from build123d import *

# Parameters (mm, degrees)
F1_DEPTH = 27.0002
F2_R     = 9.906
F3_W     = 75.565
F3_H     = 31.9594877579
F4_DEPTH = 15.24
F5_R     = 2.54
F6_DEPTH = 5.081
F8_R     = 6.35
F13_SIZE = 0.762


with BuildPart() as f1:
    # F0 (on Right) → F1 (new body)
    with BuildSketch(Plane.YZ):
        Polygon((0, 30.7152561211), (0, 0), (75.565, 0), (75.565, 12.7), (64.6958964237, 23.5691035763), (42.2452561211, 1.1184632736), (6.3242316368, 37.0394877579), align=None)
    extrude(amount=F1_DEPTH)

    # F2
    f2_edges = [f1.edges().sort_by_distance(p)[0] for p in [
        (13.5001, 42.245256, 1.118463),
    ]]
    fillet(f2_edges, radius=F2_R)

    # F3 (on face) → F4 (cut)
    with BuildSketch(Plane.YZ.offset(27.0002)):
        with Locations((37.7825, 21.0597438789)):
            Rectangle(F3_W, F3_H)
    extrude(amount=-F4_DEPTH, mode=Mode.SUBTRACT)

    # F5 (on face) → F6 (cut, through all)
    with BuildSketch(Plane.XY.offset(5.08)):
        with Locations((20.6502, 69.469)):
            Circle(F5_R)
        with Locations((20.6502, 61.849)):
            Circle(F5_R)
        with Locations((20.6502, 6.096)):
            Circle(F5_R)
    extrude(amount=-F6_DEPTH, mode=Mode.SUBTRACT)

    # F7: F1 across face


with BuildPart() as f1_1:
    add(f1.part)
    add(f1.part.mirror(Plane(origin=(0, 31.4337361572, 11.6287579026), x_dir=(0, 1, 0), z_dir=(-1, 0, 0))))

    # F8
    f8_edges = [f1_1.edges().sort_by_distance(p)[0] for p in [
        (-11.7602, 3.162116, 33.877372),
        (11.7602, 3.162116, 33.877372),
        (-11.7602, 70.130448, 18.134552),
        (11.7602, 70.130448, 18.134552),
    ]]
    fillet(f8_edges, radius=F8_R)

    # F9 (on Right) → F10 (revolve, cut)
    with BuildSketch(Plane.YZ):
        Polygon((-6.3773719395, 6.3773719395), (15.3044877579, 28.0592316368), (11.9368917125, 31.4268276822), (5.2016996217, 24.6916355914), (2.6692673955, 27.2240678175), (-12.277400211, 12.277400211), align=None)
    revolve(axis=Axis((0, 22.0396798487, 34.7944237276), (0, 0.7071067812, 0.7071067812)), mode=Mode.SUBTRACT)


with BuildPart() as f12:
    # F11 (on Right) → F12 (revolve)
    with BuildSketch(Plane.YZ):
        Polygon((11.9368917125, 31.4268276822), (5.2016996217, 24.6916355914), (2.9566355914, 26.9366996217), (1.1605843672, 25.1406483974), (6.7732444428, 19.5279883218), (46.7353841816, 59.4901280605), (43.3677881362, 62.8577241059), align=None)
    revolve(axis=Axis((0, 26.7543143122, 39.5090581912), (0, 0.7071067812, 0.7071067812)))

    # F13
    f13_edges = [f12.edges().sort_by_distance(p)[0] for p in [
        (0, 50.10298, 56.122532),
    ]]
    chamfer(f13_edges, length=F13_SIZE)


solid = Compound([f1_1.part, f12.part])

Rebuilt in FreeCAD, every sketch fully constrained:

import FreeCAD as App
import Part
import Sketcher
from FreeCAD import Vector
Q = App.Units.Quantity


def edges_at(feature, points):
    """Names of the edges that pass closest to the given points."""
    edges = feature.Shape.Edges
    near = lambda p: min(range(len(edges)), key=lambda i: edges[i].distToShape(Part.Vertex(*p))[0])
    return sorted({f"Edge{near(p) + 1}" for p in points})


def add_polygon(sketch, points):
    """Adds a closed chain of lines whose ends are joined by coincident constraints."""
    first, n = sketch.GeometryCount, len(points)
    for a, b in zip(points, points[1:] + points[:1]):
        sketch.addGeometry(Part.LineSegment(App.Vector(*a, 0), App.Vector(*b, 0)), False)
    for i in range(n):
        sketch.addConstraint(Sketcher.Constraint("Coincident", first + i, 2, first + (i + 1) % n, 1))

doc = App.newDocument("Part")
params = doc.addObject("Spreadsheet::Sheet", "Params")
for row, (alias, value) in enumerate([
    ("sketch1_length", "2 in"),
    ("sketch1_height", "0.5 in"),
    ("sketch1_length2", "1.25 in"),
    ("sketch1_width", "2.975 in"),
    ("pad1_length", "1.063 in"),
    ("fillet_radius", "0.39 in"),
    ("sketch2_width", "2.975 in"),
    ("pocket1_length", "0.6 in"),
    ("sketch3_diameter", "0.2 in"),
    ("fillet2_radius", "0.25 in"),
    ("sketch4_length", "0.1875 in"),
    ("sketch4_length2", "0.375 in"),
    ("sketch4_length3", "0.141 in"),
    ("groove_angle", "360 deg"),
    ("sketch5_length", "0.1 in"),
    ("sketch5_length2", "0.125 in"),
    ("sketch5_length3", "0.3125 in"),
    ("sketch5_length4", "2.225 in"),
    ("revolution_angle", "360 deg"),
    ("chamfer_size", "0.03 in"),
], start=1):
    params.set(f"A{row}", alias)
    params.set(f"B{row}", "=" + value)
    params.setAlias(f"B{row}", alias)

body = doc.addObject("PartDesign::Body", "Body")

sketch1 = body.newObject("Sketcher::SketchObject", "Sketch")
sketch1.AttachmentSupport = (doc.getObject("YZ_Plane"), [""])
sketch1.MapMode = "FlatFace"
add_polygon(sketch1, [(0, 31), (0, 0), (76, 0), (76, 13), (65, 24), (42, 1), (6, 37)])
sketch1.addConstraint(Sketcher.Constraint("Vertical", 0))
sketch1.addConstraint(Sketcher.Constraint("Horizontal", 1))
sketch1.addConstraint(Sketcher.Constraint("Vertical", 2))
sketch1.addConstraint(Sketcher.Constraint("Coincident", 0, 2, -1, 1))
sketch1.addConstraint(Sketcher.Constraint("Perpendicular", 3, 4))
sketch1.addConstraint(Sketcher.Constraint("Perpendicular", 4, 5))
sketch1.addConstraint(Sketcher.Constraint("Perpendicular", 5, 6))
sketch1.addConstraint(Sketcher.Constraint("Distance", 5, Q("2 in")))
sketch1.addConstraint(Sketcher.Constraint("DistanceY", 2, 1, 2, 2, Q("0.5 in")))
sketch1.addConstraint(Sketcher.Constraint("Angle", 3, Q("135 deg")))
sketch1.addConstraint(Sketcher.Constraint("Distance", 4, Q("1.25 in")))
sketch1.addConstraint(Sketcher.Constraint("DistanceX", 1, 1, 1, 2, Q("2.975 in")))
sketch1.addConstraint(Sketcher.Constraint("DistanceY", 0, 2, 0, 1, Q("30.715256 mm")))
sketch1.setExpression("Constraints[14]", "Params.sketch1_length")
sketch1.setExpression("Constraints[15]", "Params.sketch1_height")
sketch1.setExpression("Constraints[17]", "Params.sketch1_length2")
sketch1.setExpression("Constraints[18]", "Params.sketch1_width")
pad1 = body.newObject("PartDesign::Pad", "Pad")
pad1.Profile = sketch1
pad1.setExpression("Length", "Params.pad1_length")
doc.recompute()

fillet = body.newObject("PartDesign::Fillet", "Fillet")
fillet.Base = (pad1, edges_at(pad1, [(13.5, 42.245, 1.118)]))
fillet.setExpression("Radius", "Params.fillet_radius")

sketch2 = body.newObject("Sketcher::SketchObject", "Sketch001")
sketch2.AttachmentSupport = (doc.getObject("YZ_Plane"), [""])
sketch2.MapMode = "FlatFace"
sketch2.AttachmentOffset = App.Placement(Vector(0, 0, 1.063 * 25.4), App.Rotation())
add_polygon(sketch2, [(0, 37), (0, 5), (76, 5), (76, 37)])
sketch2.addConstraint(Sketcher.Constraint("Vertical", 0))
sketch2.addConstraint(Sketcher.Constraint("Horizontal", 1))
sketch2.addConstraint(Sketcher.Constraint("Vertical", 2))
sketch2.addConstraint(Sketcher.Constraint("Horizontal", 3))
sketch2.addConstraint(Sketcher.Constraint("PointOnObject", 0, 2, -2))
sketch2.addConstraint(Sketcher.Constraint("DistanceY", -1, 1, 0, 2, Q("0.2 in")))
sketch2.addConstraint(Sketcher.Constraint("DistanceX", 1, 1, 1, 2, Q("2.975 in")))
sketch2.addConstraint(Sketcher.Constraint("DistanceY", 0, 2, 0, 1, Q("31.959488 mm")))
sketch2.setExpression("Constraints[10]", "Params.sketch2_width")
pocket1 = body.newObject("PartDesign::Pocket", "Pocket")
pocket1.Profile = sketch2
pocket1.setExpression("Length", "Params.pocket1_length")

sketch3 = body.newObject("Sketcher::SketchObject", "Sketch002")
sketch3.AttachmentSupport = (doc.getObject("XY_Plane"), [""])
sketch3.MapMode = "FlatFace"
sketch3.AttachmentOffset = App.Placement(Vector(0, 0, 0.2 * 25.4), App.Rotation())
sketch3.addGeometry(Part.Circle(Vector(20.7, 69.5, 0), Vector(0, 0, 1), 2.5), False)
sketch3.addGeometry(Part.Circle(Vector(20.7, 61.8, 0), Vector(0, 0, 1), 2.5), False)
sketch3.addGeometry(Part.Circle(Vector(20.7, 6.1, 0), Vector(0, 0, 1), 2.5), False)
sketch3.addConstraint(Sketcher.Constraint("Equal", 0, 1))
sketch3.addConstraint(Sketcher.Constraint("Equal", 1, 2))
sketch3.addConstraint(Sketcher.Constraint("Vertical", 0, 3, 1, 3))
sketch3.addConstraint(Sketcher.Constraint("Vertical", 1, 3, 2, 3))
sketch3.addConstraint(Sketcher.Constraint("Diameter", 0, Q("0.2 in")))
sketch3.addConstraint(Sketcher.Constraint("DistanceY", 1, 3, 0, 3, Q("0.3 in")))
sketch3.addConstraint(Sketcher.Constraint("DistanceY", -1, 1, 2, 3, Q("0.24 in")))
sketch3.addConstraint(Sketcher.Constraint("DistanceX", -1, 1, 0, 3, Q("0.813 in")))
sketch3.addConstraint(Sketcher.Constraint("DistanceY", -1, 1, 0, 3, Q("2.735 in")))
sketch3.setExpression("Constraints[4]", "Params.sketch3_diameter")
pocket2 = body.newObject("PartDesign::Pocket", "Pocket001")
pocket2.Profile = sketch3
pocket2.Type = "ThroughAll"
body2 = doc.addObject("PartDesign::Body", "Body001")
doc.recompute()

body2.BaseFeature = body
doc.recompute()

mirroring = doc.addObject("Part::Mirroring", "Mirroring")
mirroring.Source = body
mirroring.Base = Vector(0, 31.433736, 11.628758)
mirroring.Normal = Vector(-1, 0, 0)
body3 = doc.addObject("PartDesign::Body", "Body002")
body3.BaseFeature = mirroring
boolean = body2.newObject("PartDesign::Boolean", "Boolean")
boolean.Type = "Fuse"
boolean.addObjects([body3])
doc.recompute()

fillet2 = body2.newObject("PartDesign::Fillet", "Fillet001")
fillet2.Base = (boolean, edges_at(boolean, [
    (-11.76, 3.162, 33.877),
    (11.76, 3.162, 33.877),
    (-11.76, 70.13, 18.135),
    (11.76, 70.13, 18.135),
]))
fillet2.setExpression("Radius", "Params.fillet2_radius")

sketch4 = body2.newObject("Sketcher::SketchObject", "Sketch003")
sketch4.AttachmentSupport = (doc.getObject("YZ_Plane001"), [""])
sketch4.MapMode = "FlatFace"
add_polygon(sketch4, [(-6.4, 6.4), (15.3, 28.1), (11.9, 31.4), (5.2, 24.7), (2.7, 27.2), (-12.3, 12.3)])
sketch4.addGeometry(Part.LineSegment(Vector(-6.4, 6.4, 0), Vector(15.3, 28.1, 0)), True)
sketch4.addConstraint(Sketcher.Constraint("Coincident", 6, 1, 5, 2))
sketch4.addConstraint(Sketcher.Constraint("Coincident", 6, 2, 0, 2))
sketch4.addConstraint(Sketcher.Constraint("Perpendicular", 0, 1))
sketch4.addConstraint(Sketcher.Constraint("Perpendicular", 1, 2))
sketch4.addConstraint(Sketcher.Constraint("Perpendicular", 2, 3))
sketch4.addConstraint(Sketcher.Constraint("Perpendicular", 3, 4))
sketch4.addConstraint(Sketcher.Constraint("Perpendicular", 4, 5))
sketch4.addConstraint(Sketcher.Constraint("Angle", 0, Q("45 deg")))
sketch4.addConstraint(Sketcher.Constraint("Distance", 1, Q("0.1875 in")))
sketch4.addConstraint(Sketcher.Constraint("Distance", 2, Q("0.375 in")))
sketch4.addConstraint(Sketcher.Constraint("Distance", 3, Q("0.141 in")))
sketch4.addConstraint(Sketcher.Constraint("DistanceX", -1, 1, 2, 2, Q("5.2017 mm")))
sketch4.addConstraint(Sketcher.Constraint("DistanceX", 4, 2, -1, 1, Q("12.2774 mm")))
sketch4.addConstraint(Sketcher.Constraint("DistanceY", -1, 1, 4, 2, Q("12.2774 mm")))
sketch4.setExpression("Constraints[14]", "Params.sketch4_length")
sketch4.setExpression("Constraints[15]", "Params.sketch4_length2")
sketch4.setExpression("Constraints[16]", "Params.sketch4_length3")
groove = body2.newObject("PartDesign::Groove", "Groove")
groove.Profile = sketch4
groove.ReferenceAxis = (sketch4, ["Axis0"])
groove.setExpression("Angle", "Params.groove_angle")
body4 = doc.addObject("PartDesign::Body", "Body003")

sketch5 = body4.newObject("Sketcher::SketchObject", "Sketch004")
sketch5.AttachmentSupport = (doc.getObject("YZ_Plane003"), [""])
sketch5.MapMode = "FlatFace"
add_polygon(sketch5, [(5.2, 24.7), (3, 26.9), (1.2, 25.1), (6.8, 19.5), (46.7, 59.5), (43.4, 62.9)])
sketch5.addGeometry(Part.LineSegment(Vector(6.8, 19.5, 0), Vector(46.7, 59.5, 0)), True)
sketch5.addConstraint(Sketcher.Constraint("Coincident", 6, 1, 2, 2))
sketch5.addConstraint(Sketcher.Constraint("Coincident", 6, 2, 3, 2))
sketch5.addConstraint(Sketcher.Constraint("Perpendicular", 0, 1))
sketch5.addConstraint(Sketcher.Constraint("Perpendicular", 1, 2))
sketch5.addConstraint(Sketcher.Constraint("Perpendicular", 2, 3))
sketch5.addConstraint(Sketcher.Constraint("Perpendicular", 3, 4))
sketch5.addConstraint(Sketcher.Constraint("Perpendicular", 4, 5))
sketch5.addConstraint(Sketcher.Constraint("Angle", 0, Q("135 deg")))
sketch5.addConstraint(Sketcher.Constraint("Distance", 1, Q("0.1 in")))
sketch5.addConstraint(Sketcher.Constraint("Distance", 0, Q("0.125 in")))
sketch5.addConstraint(Sketcher.Constraint("Distance", 2, Q("0.3125 in")))
sketch5.addConstraint(Sketcher.Constraint("Distance", 3, Q("2.225 in")))
sketch5.addConstraint(Sketcher.Constraint("DistanceY", -1, 1, 0, 2, Q("1.0605 in")))
sketch5.addConstraint(Sketcher.Constraint("DistanceX", -1, 1, 5, 2, Q("5.2017 mm")))
sketch5.setExpression("Constraints[14]", "Params.sketch5_length")
sketch5.setExpression("Constraints[15]", "Params.sketch5_length2")
sketch5.setExpression("Constraints[16]", "Params.sketch5_length3")
sketch5.setExpression("Constraints[17]", "Params.sketch5_length4")
revolution = body4.newObject("PartDesign::Revolution", "Revolution")
revolution.Profile = sketch5
revolution.ReferenceAxis = (sketch5, ["Axis0"])
revolution.setExpression("Angle", "Params.revolution_angle")
doc.recompute()

chamfer = body4.newObject("PartDesign::Chamfer", "Chamfer")
chamfer.Base = (revolution, edges_at(revolution, [(0, 50.103, 56.123)]))
chamfer.setExpression("Size", "Params.chamfer_size")
mirroring.Visibility = False

doc.recompute()
